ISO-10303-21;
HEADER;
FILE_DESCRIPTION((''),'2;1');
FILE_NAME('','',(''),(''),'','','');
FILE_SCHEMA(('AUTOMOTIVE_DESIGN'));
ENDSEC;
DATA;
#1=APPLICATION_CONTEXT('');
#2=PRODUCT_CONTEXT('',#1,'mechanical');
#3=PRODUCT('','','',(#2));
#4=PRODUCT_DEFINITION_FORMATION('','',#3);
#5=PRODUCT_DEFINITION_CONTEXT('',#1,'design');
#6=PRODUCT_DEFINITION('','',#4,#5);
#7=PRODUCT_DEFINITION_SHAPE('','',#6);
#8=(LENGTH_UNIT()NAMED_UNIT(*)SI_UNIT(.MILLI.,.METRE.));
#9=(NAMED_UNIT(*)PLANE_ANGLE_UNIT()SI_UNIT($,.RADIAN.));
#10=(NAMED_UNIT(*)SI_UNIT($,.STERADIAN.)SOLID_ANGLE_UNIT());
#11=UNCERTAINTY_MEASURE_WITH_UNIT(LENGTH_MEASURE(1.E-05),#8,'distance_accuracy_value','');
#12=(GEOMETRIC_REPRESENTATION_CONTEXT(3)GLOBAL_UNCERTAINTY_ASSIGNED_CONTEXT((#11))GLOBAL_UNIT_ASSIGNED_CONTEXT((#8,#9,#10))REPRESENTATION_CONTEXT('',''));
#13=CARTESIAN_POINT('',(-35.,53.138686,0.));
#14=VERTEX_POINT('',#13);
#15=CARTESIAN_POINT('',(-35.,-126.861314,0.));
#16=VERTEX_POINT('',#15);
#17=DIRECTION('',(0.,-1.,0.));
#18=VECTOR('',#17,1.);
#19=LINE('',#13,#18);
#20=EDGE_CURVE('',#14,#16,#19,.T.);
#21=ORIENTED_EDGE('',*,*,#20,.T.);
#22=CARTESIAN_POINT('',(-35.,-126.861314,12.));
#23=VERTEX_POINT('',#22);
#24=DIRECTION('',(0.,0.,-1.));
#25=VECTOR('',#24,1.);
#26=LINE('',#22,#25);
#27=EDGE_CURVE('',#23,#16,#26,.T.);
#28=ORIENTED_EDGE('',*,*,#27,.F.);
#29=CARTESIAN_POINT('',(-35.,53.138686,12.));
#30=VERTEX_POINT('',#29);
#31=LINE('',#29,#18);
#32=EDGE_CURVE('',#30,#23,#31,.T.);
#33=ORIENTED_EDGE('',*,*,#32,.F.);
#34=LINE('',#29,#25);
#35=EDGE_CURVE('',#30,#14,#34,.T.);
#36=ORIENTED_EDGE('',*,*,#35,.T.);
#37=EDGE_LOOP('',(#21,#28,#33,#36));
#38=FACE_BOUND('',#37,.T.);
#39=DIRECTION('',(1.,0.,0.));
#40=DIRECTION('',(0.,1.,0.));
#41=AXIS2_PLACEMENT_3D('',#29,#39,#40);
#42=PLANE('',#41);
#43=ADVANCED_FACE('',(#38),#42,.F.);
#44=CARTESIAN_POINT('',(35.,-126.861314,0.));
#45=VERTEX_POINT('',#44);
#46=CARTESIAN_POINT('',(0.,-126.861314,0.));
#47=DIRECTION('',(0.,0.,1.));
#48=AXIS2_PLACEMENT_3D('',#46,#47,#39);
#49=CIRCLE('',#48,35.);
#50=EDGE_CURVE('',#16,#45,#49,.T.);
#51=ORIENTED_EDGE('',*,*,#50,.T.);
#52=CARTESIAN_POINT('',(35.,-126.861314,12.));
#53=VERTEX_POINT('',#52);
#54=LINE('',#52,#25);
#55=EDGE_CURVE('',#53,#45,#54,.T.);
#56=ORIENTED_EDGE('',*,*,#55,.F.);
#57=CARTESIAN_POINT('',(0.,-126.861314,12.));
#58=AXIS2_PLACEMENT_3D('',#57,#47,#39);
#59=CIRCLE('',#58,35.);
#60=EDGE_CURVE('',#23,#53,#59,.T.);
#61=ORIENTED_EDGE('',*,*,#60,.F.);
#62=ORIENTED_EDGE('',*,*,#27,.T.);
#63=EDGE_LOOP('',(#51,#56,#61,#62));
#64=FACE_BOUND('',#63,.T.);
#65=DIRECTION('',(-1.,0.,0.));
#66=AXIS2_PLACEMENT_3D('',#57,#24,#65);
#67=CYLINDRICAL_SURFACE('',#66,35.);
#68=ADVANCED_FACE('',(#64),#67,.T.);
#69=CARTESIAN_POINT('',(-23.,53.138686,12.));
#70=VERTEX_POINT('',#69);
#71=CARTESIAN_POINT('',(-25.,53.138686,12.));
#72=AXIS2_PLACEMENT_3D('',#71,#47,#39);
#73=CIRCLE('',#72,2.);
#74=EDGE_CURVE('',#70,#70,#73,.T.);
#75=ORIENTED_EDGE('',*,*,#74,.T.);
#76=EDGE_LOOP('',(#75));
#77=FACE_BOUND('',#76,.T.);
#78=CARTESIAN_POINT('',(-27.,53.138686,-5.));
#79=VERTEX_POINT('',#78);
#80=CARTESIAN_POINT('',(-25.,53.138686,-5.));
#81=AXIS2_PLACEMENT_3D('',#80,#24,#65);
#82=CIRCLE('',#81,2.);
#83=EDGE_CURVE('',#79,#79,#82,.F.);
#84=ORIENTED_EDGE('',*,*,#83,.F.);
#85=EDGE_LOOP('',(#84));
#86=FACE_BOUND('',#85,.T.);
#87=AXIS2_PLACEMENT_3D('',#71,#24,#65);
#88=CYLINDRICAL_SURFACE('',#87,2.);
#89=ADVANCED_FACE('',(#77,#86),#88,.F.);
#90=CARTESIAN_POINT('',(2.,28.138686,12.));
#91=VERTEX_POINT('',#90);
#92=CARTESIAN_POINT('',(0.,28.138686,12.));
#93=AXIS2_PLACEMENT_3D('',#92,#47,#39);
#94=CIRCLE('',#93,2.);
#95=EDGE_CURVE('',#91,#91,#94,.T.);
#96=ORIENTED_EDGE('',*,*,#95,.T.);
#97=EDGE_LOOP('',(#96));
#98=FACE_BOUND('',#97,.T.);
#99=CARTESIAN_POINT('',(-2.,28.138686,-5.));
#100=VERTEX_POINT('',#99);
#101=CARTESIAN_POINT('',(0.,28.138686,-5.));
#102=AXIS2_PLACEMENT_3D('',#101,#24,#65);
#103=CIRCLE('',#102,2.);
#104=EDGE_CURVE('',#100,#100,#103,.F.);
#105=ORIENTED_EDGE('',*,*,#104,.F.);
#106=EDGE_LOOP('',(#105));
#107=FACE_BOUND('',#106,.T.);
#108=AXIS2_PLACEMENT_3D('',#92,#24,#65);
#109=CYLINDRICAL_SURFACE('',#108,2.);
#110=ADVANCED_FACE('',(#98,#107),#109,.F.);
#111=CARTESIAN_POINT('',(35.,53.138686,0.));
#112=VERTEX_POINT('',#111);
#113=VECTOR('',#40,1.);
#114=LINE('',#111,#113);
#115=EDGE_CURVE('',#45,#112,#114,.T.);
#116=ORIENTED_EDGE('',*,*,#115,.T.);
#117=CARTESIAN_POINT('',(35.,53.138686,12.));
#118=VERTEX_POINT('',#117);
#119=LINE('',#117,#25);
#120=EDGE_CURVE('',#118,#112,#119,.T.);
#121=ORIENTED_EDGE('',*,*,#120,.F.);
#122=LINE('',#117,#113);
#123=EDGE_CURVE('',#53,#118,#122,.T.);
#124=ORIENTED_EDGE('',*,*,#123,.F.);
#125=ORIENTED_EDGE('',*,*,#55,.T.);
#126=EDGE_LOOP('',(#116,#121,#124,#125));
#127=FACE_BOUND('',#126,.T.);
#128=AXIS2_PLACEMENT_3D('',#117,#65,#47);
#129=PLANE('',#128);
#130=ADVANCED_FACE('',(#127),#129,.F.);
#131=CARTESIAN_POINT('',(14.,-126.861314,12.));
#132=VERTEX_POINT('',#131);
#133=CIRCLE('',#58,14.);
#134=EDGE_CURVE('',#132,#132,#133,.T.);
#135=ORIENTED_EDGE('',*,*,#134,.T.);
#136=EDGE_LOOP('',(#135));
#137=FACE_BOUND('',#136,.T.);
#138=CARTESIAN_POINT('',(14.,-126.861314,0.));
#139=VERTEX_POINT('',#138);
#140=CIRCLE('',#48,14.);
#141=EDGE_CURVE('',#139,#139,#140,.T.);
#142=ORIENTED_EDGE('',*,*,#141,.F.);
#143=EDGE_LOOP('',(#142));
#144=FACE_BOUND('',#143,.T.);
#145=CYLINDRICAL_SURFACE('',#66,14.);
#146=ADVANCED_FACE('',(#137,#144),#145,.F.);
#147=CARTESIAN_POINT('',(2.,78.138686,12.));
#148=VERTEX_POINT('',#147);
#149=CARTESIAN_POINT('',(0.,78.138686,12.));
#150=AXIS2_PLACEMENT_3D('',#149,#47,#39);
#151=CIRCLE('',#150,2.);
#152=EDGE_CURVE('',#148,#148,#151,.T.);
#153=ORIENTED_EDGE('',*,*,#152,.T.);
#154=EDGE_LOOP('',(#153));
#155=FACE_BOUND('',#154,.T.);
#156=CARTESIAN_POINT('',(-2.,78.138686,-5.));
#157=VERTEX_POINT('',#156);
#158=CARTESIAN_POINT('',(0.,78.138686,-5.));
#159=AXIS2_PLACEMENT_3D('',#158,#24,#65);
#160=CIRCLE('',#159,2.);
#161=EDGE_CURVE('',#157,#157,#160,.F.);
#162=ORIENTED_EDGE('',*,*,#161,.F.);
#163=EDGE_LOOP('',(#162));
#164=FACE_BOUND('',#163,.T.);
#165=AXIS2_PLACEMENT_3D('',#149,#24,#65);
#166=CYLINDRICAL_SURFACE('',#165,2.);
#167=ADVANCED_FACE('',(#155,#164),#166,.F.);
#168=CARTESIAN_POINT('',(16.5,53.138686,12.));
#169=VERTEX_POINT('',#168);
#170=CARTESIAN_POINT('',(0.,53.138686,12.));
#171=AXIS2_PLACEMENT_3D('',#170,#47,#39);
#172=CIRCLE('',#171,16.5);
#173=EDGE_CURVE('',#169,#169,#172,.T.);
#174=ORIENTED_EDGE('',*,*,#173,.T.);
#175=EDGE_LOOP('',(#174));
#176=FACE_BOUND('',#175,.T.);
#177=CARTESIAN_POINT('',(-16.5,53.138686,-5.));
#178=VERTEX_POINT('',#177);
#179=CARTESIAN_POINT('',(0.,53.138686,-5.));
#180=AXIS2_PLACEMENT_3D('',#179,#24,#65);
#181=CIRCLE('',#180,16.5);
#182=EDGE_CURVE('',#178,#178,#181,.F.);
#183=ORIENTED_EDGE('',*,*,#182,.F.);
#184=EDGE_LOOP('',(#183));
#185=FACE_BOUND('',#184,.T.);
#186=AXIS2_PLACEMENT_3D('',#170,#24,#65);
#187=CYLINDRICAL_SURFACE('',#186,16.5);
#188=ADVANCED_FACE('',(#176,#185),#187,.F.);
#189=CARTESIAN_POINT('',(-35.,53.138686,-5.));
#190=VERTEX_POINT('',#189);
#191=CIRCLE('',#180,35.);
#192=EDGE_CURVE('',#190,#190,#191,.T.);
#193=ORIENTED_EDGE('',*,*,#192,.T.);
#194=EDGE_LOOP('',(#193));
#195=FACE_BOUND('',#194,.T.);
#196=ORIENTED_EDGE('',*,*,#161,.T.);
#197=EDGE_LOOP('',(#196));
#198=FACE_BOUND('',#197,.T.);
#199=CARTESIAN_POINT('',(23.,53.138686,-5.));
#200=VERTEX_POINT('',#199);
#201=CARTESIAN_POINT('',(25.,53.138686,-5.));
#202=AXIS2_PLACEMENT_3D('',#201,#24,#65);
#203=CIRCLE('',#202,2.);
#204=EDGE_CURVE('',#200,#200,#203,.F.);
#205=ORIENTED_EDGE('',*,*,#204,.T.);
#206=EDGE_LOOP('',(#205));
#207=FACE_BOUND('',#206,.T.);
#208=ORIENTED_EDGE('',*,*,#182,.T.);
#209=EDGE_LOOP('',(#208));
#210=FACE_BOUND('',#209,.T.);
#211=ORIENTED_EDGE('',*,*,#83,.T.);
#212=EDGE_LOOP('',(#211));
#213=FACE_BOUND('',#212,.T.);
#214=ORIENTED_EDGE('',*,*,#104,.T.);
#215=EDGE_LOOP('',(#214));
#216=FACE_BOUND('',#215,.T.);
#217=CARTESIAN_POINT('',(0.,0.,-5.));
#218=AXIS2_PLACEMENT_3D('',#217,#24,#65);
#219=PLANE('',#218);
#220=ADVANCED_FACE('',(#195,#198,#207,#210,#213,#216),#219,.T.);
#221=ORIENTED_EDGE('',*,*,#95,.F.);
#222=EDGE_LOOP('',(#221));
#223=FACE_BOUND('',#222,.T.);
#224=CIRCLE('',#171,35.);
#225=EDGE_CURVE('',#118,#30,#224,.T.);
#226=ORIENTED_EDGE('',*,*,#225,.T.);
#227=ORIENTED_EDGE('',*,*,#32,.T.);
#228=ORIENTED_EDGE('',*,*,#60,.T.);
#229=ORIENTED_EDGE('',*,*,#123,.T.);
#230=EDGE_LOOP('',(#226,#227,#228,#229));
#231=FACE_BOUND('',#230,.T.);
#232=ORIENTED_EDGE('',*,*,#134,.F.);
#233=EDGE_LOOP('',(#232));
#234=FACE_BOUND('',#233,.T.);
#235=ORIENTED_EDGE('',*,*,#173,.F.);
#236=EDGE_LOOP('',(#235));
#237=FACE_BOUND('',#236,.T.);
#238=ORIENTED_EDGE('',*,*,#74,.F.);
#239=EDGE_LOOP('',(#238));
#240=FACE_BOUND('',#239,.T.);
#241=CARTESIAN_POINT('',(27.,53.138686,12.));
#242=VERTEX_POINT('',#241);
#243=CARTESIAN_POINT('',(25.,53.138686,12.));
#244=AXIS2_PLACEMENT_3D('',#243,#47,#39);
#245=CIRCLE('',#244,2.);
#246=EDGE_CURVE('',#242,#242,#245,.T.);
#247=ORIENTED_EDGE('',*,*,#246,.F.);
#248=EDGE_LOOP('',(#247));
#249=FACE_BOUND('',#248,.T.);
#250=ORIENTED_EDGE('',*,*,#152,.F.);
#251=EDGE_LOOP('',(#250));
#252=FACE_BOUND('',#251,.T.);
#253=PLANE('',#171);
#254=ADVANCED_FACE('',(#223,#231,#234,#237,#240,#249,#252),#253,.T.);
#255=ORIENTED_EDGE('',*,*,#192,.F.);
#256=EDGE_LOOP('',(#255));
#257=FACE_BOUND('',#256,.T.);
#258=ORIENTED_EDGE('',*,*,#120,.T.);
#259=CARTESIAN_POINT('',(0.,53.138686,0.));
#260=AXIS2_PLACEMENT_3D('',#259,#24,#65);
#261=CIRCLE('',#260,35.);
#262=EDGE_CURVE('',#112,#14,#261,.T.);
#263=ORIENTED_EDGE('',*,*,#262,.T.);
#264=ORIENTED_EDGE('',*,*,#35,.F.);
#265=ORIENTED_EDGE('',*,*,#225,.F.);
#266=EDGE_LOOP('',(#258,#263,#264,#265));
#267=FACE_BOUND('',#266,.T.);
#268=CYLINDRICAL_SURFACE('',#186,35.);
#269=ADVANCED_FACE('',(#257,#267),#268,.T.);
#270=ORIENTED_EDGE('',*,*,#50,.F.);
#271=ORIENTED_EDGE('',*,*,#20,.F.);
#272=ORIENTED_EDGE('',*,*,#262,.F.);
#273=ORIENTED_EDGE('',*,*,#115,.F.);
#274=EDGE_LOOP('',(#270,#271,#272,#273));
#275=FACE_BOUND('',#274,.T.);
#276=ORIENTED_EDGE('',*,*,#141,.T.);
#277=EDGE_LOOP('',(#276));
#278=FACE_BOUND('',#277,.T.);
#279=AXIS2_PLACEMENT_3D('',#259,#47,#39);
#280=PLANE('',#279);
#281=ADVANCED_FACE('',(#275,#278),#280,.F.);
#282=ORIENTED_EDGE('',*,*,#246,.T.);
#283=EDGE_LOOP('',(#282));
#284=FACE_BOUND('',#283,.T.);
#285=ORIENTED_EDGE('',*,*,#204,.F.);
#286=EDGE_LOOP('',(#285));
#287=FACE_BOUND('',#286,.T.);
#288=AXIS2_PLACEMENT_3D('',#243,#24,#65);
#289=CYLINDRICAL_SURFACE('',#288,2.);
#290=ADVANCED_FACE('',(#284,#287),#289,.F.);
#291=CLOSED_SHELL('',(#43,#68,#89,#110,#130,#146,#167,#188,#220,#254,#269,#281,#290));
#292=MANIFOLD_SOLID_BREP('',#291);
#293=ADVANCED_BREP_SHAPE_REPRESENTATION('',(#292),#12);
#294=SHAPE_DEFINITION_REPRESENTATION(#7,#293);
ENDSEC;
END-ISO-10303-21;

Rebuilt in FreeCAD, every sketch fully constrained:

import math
import FreeCAD as App
import Part
import Sketcher

doc = App.newDocument("Part")
params = doc.addObject("Spreadsheet::Sheet", "Params")
for row, (alias, value) in enumerate([
    ("sketch1_diameter", "28 mm"),
    ("sketch1_diameter2", "4 mm"),
    ("sketch1_diameter3", "33 mm"),
    ("sketch1_radius", "35 mm"),
    ("sketch1_height", "180 mm"),
    ("pad1_length", "12 mm"),
    ("sketch2_diameter", "70 mm"),
    ("sketch2_diameter2", "4 mm"),
    ("sketch2_diameter3", "33 mm"),
    ("pad2_length", "5 mm"),
], start=1):
    params.set(f"A{row}", alias)
    params.set(f"B{row}", "=" + value)
    params.setAlias(f"B{row}", alias)

body = doc.addObject("PartDesign::Body", "Body")

sketch1 = body.newObject("Sketcher::SketchObject", "Sketch")
sketch1.AttachmentSupport = (doc.getObject("XY_Plane"), [""])
sketch1.MapMode = "FlatFace"
sketch1.addGeometry([
    Part.LineSegment(App.Vector(35, -126.861314, 0), App.Vector(35, 53.138686, 0)),
    Part.ArcOfCircle(Part.Circle(App.Vector(0, 53.138686, 0), App.Vector(0, 0, 1), 35), math.radians(0), math.radians(180)),
    Part.LineSegment(App.Vector(-35, 53.138686, 0), App.Vector(-35, -126.861314, 0)),
    Part.ArcOfCircle(Part.Circle(App.Vector(0, -126.861314, 0), App.Vector(0, 0, 1), 35), math.radians(180), math.radians(360)),
    Part.Circle(App.Vector(0, -126.861314, 0), App.Vector(0, 0, 1), 14),
    Part.Circle(App.Vector(25, 53.138686, 0), App.Vector(0, 0, 1), 2),
    Part.Circle(App.Vector(0, 28.138686, 0), App.Vector(0, 0, 1), 2),
    Part.Circle(App.Vector(0, 53.138686, 0), App.Vector(0, 0, 1), 16.5),
    Part.Circle(App.Vector(0, 78.138686, 0), App.Vector(0, 0, 1), 2),
    Part.Circle(App.Vector(-25, 53.138686, 0), App.Vector(0, 0, 1), 2),
], False)
sketch1.addConstraint([
    Sketcher.Constraint("Tangent", 0, 2, 1, 1),
    Sketcher.Constraint("Tangent", 1, 2, 2, 1),
    Sketcher.Constraint("Tangent", 2, 2, 3, 1),
    Sketcher.Constraint("Tangent", 3, 2, 0, 1),
    Sketcher.Constraint("Vertical", 0),
    Sketcher.Constraint("Vertical", 2),
    Sketcher.Constraint("Coincident", 4, 3, 3, 3),
    Sketcher.Constraint("Coincident", 7, 3, 1, 3),
    Sketcher.Constraint("Equal", 5, 6),
    Sketcher.Constraint("Equal", 6, 8),
    Sketcher.Constraint("Equal", 8, 9),
    Sketcher.Constraint("Symmetric", 5, 3, 9, 3, -2),
    Sketcher.Constraint("PointOnObject", 1, 3, -2),
    Sketcher.Constraint("PointOnObject", 6, 3, -2),
    Sketcher.Constraint("PointOnObject", 8, 3, -2),
    Sketcher.Constraint("Horizontal", 1, 3, 5, 3),
    Sketcher.Constraint("Diameter", 4, 28.0),
    Sketcher.Constraint("Diameter", 5, 4.0),
    Sketcher.Constraint("Diameter", 7, 33.0),
    Sketcher.Constraint("Radius", 1, 35.0),
    Sketcher.Constraint("DistanceY", 0, 1, 0, 2, 180.0),
    Sketcher.Constraint("DistanceX", -1, 1, 5, 3, 25.0),
    Sketcher.Constraint("DistanceY", 6, 3, 1, 3, 25.0),
    Sketcher.Constraint("DistanceY", 1, 3, 8, 3, 25.0),
    Sketcher.Constraint("DistanceY", -1, 1, 1, 3, 53.138686),
])
sketch1.setExpression("Constraints[16]", "Params.sketch1_diameter")
sketch1.setExpression("Constraints[17]", "Params.sketch1_diameter2")
sketch1.setExpression("Constraints[18]", "Params.sketch1_diameter3")
sketch1.setExpression("Constraints[19]", "Params.sketch1_radius")
sketch1.setExpression("Constraints[20]", "Params.sketch1_height")
pad1 = body.newObject("PartDesign::Pad", "Pad")
pad1.Profile = sketch1
pad1.setExpression("Length", "Params.pad1_length")

sketch2 = body.newObject("Sketcher::SketchObject", "Sketch001")
sketch2.AttachmentSupport = (doc.getObject("XY_Plane"), [""])
sketch2.MapMode = "FlatFace"
sketch2.AttachmentOffset = App.Placement(App.Vector(0, 0, -5), App.Rotation())
sketch2.addGeometry([
    Part.Circle(App.Vector(0, 53.138686, 0), App.Vector(0, 0, 1), 35),
    Part.Circle(App.Vector(0, 28.138686, 0), App.Vector(0, 0, 1), 2),
    Part.Circle(App.Vector(25, 53.138686, 0), App.Vector(0, 0, 1), 2),
    Part.Circle(App.Vector(0, 53.138686, 0), App.Vector(0, 0, 1), 16.5),
    Part.Circle(App.Vector(-25, 53.138686, 0), App.Vector(0, 0, 1), 2),
    Part.Circle(App.Vector(0, 78.138686, 0), App.Vector(0, 0, 1), 2),
], False)
sketch2.addConstraint([
    Sketcher.Constraint("Coincident", 3, 3, 0, 3),
    Sketcher.Constraint("Equal", 1, 2),
    Sketcher.Constraint("Equal", 2, 4),
    Sketcher.Constraint("Equal", 4, 5),
    Sketcher.Constraint("Symmetric", 2, 3, 4, 3, -2),
    Sketcher.Constraint("PointOnObject", 0, 3, -2),
    Sketcher.Constraint("PointOnObject", 1, 3, -2),
    Sketcher.Constraint("PointOnObject", 5, 3, -2),
    Sketcher.Constraint("Horizontal", 0, 3, 2, 3),
    Sketcher.Constraint("Diameter", 0, 70.0),
    Sketcher.Constraint("Diameter", 1, 4.0),
    Sketcher.Constraint("Diameter", 3, 33.0),
    Sketcher.Constraint("DistanceX", -1, 1, 2, 3, 25.0),
    Sketcher.Constraint("DistanceY", 1, 3, 0, 3, 25.0),
    Sketcher.Constraint("DistanceY", 0, 3, 5, 3, 25.0),
    Sketcher.Constraint("DistanceY", -1, 1, 0, 3, 53.138686),
])
sketch2.setExpression("Constraints[9]", "Params.sketch2_diameter")
sketch2.setExpression("Constraints[10]", "Params.sketch2_diameter2")
sketch2.setExpression("Constraints[11]", "Params.sketch2_diameter3")
pad2 = body.newObject("PartDesign::Pad", "Pad001")
pad2.Profile = sketch2
pad2.setExpression("Length", "Params.pad2_length")

doc.recompute()
